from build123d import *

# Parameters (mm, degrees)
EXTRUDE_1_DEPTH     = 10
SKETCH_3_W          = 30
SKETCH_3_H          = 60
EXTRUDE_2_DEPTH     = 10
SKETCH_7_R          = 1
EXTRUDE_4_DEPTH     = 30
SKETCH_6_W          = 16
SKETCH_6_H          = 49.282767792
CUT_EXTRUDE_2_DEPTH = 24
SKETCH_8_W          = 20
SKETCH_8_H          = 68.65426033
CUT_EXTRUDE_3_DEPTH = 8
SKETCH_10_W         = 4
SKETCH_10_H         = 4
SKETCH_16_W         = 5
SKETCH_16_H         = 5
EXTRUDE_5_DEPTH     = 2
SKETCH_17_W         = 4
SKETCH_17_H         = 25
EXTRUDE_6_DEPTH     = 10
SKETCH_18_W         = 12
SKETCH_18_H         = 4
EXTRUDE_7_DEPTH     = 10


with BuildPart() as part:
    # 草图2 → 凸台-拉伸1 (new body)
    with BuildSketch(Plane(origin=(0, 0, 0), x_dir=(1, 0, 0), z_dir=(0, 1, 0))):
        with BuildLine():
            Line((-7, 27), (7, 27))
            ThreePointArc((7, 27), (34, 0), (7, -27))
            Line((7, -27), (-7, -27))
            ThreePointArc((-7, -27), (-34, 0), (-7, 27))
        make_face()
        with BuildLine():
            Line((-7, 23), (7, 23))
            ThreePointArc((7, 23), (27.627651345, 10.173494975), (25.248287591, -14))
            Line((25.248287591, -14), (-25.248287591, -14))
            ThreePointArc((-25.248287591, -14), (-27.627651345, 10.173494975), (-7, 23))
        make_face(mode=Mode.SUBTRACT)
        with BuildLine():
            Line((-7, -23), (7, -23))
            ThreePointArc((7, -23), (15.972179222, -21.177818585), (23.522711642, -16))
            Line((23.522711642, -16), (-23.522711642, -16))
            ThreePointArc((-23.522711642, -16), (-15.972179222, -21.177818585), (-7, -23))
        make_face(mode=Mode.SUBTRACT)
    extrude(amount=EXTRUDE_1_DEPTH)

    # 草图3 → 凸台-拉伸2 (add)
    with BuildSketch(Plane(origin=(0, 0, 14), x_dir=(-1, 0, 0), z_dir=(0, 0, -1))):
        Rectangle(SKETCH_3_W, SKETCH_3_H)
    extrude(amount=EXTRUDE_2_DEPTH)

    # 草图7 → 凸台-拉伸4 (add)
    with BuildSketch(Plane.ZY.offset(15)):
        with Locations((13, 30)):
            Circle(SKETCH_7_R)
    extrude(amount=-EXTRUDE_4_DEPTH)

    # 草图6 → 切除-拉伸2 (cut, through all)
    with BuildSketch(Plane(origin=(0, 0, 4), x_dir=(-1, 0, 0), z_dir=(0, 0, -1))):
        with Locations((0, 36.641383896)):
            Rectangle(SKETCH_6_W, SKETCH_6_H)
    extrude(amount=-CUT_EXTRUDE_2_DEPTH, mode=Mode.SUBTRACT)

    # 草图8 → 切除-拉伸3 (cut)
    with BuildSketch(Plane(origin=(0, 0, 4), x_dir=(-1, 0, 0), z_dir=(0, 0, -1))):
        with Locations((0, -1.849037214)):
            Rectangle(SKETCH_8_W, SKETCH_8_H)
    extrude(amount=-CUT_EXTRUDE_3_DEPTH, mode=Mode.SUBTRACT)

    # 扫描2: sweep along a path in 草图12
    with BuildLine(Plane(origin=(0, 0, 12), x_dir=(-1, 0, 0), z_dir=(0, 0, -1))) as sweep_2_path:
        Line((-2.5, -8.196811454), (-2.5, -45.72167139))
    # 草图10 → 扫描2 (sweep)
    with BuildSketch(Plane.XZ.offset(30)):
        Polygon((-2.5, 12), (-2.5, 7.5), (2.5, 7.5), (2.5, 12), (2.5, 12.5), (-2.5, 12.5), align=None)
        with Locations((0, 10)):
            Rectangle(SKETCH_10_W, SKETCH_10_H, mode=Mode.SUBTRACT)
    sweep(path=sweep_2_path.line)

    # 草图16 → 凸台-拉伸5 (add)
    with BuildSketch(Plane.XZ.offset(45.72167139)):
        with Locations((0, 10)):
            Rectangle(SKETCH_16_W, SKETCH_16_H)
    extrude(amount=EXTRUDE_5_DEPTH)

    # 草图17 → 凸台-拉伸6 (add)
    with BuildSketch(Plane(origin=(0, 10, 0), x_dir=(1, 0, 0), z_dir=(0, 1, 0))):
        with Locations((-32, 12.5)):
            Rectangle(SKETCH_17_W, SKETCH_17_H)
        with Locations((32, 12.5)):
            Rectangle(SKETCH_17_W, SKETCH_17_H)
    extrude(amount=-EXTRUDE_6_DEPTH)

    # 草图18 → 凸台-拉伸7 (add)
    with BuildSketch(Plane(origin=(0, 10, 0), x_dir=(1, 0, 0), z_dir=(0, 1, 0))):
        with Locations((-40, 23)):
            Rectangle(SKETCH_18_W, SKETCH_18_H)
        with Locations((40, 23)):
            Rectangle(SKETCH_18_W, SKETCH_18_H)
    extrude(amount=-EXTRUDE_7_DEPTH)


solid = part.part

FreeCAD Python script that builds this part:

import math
import FreeCAD as App
import Part
import Sketcher
Q = App.Units.Quantity

doc = App.newDocument("Part")
body = doc.addObject("PartDesign::Body", "Body")

# Sketch on XZ plane
sketch1 = doc.addObject("Sketcher::SketchObject", "Sketch")
body.addObject(sketch1)
sketch1.AttachmentSupport = (doc.XZ_Plane, [""])
sketch1.MapMode = "FlatFace"
sketch1.addGeometry([
    Part.LineSegment(App.Vector(7, -27, 0), App.Vector(-7, -27, 0)),  # 0
    Part.ArcOfCircle(Part.Circle(App.Vector(-7, 0, 0), App.Vector(0, 0, 1), 27), math.radians(90), math.radians(270)),  # 1
    Part.LineSegment(App.Vector(-7, 27, 0), App.Vector(7, 27, 0)),  # 2
    Part.ArcOfCircle(Part.Circle(App.Vector(7, 0, 0), App.Vector(0, 0, 1), 27), math.radians(-90), math.radians(90)),  # 3
    Part.ArcOfCircle(Part.Circle(App.Vector(-7, 0, 0), App.Vector(0, 0, 1), 23), math.radians(90), math.radians(136)),  # 4
    Part.LineSegment(App.Vector(-24, 16, 0), App.Vector(24, 16, 0)),  # 5
    Part.ArcOfCircle(Part.Circle(App.Vector(7, 0, 0), App.Vector(0, 0, 1), 23), math.radians(44), math.radians(90)),  # 6
    Part.LineSegment(App.Vector(7, 23, 0), App.Vector(-7, 23, 0)),  # 7
    Part.LineSegment(App.Vector(-7, -23, 0), App.Vector(7, -23, 0)),  # 8
    Part.ArcOfCircle(Part.Circle(App.Vector(7, 0, 0), App.Vector(0, 0, 1), 23), math.radians(-90), math.radians(37)),  # 9
    Part.LineSegment(App.Vector(25, 14, 0), App.Vector(-25, 14, 0)),  # 10
    Part.ArcOfCircle(Part.Circle(App.Vector(-7, 0, 0), App.Vector(0, 0, 1), 23), math.radians(143), math.radians(270)),  # 11
], False)
sketch1.addConstraint([
    Sketcher.Constraint("Tangent", 0, 2, 1, 2),
    Sketcher.Constraint("Tangent", 1, 1, 2, 1),
    Sketcher.Constraint("Tangent", 2, 2, 3, 2),
    Sketcher.Constraint("Tangent", 3, 1, 0, 1),
    Sketcher.Constraint("Coincident", 4, 2, 5, 1),
    Sketcher.Constraint("Coincident", 5, 2, 6, 1),
    Sketcher.Constraint("Tangent", 6, 2, 7, 1),
    Sketcher.Constraint("Tangent", 7, 2, 4, 1),
    Sketcher.Constraint("Tangent", 8, 2, 9, 1),
    Sketcher.Constraint("Coincident", 9, 2, 10, 1),
    Sketcher.Constraint("Coincident", 10, 2, 11, 1),
    Sketcher.Constraint("Tangent", 11, 2, 8, 1),
    Sketcher.Constraint("Horizontal", 0),
    Sketcher.Constraint("Horizontal", 2),
    Sketcher.Constraint("Horizontal", 5),
    Sketcher.Constraint("Horizontal", 7),
    Sketcher.Constraint("Horizontal", 8),
    Sketcher.Constraint("Horizontal", 10),
    Sketcher.Constraint("Coincident", 4, 3, 1, 3),
    Sketcher.Constraint("Coincident", 6, 3, 3, 3),
    Sketcher.Constraint("Coincident", 9, 3, 3, 3),
    Sketcher.Constraint("Coincident", 11, 3, 1, 3),
    Sketcher.Constraint("Equal", 6, 9),
    Sketcher.Constraint("Symmetric", 1, 3, 3, 3, -1, 1),
    Sketcher.Constraint("Radius", 1, Q("27 mm")),
    Sketcher.Constraint("Radius", 4, Q("23 mm")),
    Sketcher.Constraint("DistanceX", 0, 2, 0, 1, Q("14 mm")),
    Sketcher.Constraint("DistanceY", -1, 1, 4, 2, Q("16 mm")),
    Sketcher.Constraint("DistanceY", -1, 1, 9, 2, Q("14 mm")),
])
pad1 = doc.addObject("PartDesign::Pad", "Pad")
body.addObject(pad1)
pad1.Profile = sketch1
pad1.Length = 10
pad1.Reversed = True

# Sketch on XY plane
sketch2 = doc.addObject("Sketcher::SketchObject", "Sketch001")
body.addObject(sketch2)
sketch2.AttachmentSupport = (doc.XY_Plane, [""])
sketch2.MapMode = "FlatFace"
sketch2.AttachmentOffset = App.Placement(App.Vector(0, 0, 14), App.Rotation())
sketch2.addGeometry([
    Part.LineSegment(App.Vector(15, 30, 0), App.Vector(15, -30, 0)),
    Part.LineSegment(App.Vector(15, -30, 0), App.Vector(-15, -30, 0)),
    Part.LineSegment(App.Vector(-15, -30, 0), App.Vector(-15, 30, 0)),
    Part.LineSegment(App.Vector(-15, 30, 0), App.Vector(15, 30, 0)),
], False)
sketch2.addConstraint([
    Sketcher.Constraint("Coincident", 0, 2, 1, 1),
    Sketcher.Constraint("Coincident", 1, 2, 2, 1),
    Sketcher.Constraint("Coincident", 2, 2, 3, 1),
    Sketcher.Constraint("Coincident", 3, 2, 0, 1),
    Sketcher.Constraint("Vertical", 0),
    Sketcher.Constraint("Horizontal", 1),
    Sketcher.Constraint("Vertical", 2),
    Sketcher.Constraint("Horizontal", 3),
    Sketcher.Constraint("Symmetric", 0, 2, 2, 2, -1, 1),
    Sketcher.Constraint("DistanceX", 1, 2, 1, 1, Q("30 mm")),
    Sketcher.Constraint("DistanceY", 0, 2, 0, 1, Q("60 mm")),
])
pad2 = doc.addObject("PartDesign::Pad", "Pad001")
body.addObject(pad2)
pad2.Profile = sketch2
pad2.Length = 10
pad2.Reversed = True

# Sketch on YZ plane
sketch3 = doc.addObject("Sketcher::SketchObject", "Sketch002")
body.addObject(sketch3)
sketch3.AttachmentSupport = (doc.YZ_Plane, [""])
sketch3.MapMode = "FlatFace"
sketch3.AttachmentOffset = App.Placement(App.Vector(0, 0, -15), App.Rotation())
sketch3.addGeometry(Part.Circle(App.Vector(30, 13, 0), App.Vector(0, 0, 1), 1), False)
sketch3.addConstraint([
    Sketcher.Constraint("Diameter", 0, Q("2 mm")),
    Sketcher.Constraint("DistanceX", -1, 1, 0, 3, Q("30 mm")),
    Sketcher.Constraint("DistanceY", -1, 1, 0, 3, Q("13 mm")),
])
pad3 = doc.addObject("PartDesign::Pad", "Pad002")
body.addObject(pad3)
pad3.Profile = sketch3
pad3.Length = 30

# Sketch on XY plane
sketch4 = doc.addObject("Sketcher::SketchObject", "Sketch003")
body.addObject(sketch4)
sketch4.AttachmentSupport = (doc.XY_Plane, [""])
sketch4.MapMode = "FlatFace"
sketch4.AttachmentOffset = App.Placement(App.Vector(0, 0, 4), App.Rotation())
sketch4.addGeometry([
    Part.LineSegment(App.Vector(8, 61, 0), App.Vector(8, 12, 0)),
    Part.LineSegment(App.Vector(8, 12, 0), App.Vector(-8, 12, 0)),
    Part.LineSegment(App.Vector(-8, 12, 0), App.Vector(-8, 61, 0)),
    Part.LineSegment(App.Vector(-8, 61, 0), App.Vector(8, 61, 0)),
], False)
sketch4.addConstraint([
    Sketcher.Constraint("Coincident", 0, 2, 1, 1),
    Sketcher.Constraint("Coincident", 1, 2, 2, 1),
    Sketcher.Constraint("Coincident", 2, 2, 3, 1),
    Sketcher.Constraint("Coincident", 3, 2, 0, 1),
    Sketcher.Constraint("Vertical", 0),
    Sketcher.Constraint("Horizontal", 1),
    Sketcher.Constraint("Vertical", 2),
    Sketcher.Constraint("Horizontal", 3),
    Sketcher.Constraint("DistanceX", 1, 2, 1, 1, Q("16 mm")),
    Sketcher.Constraint("DistanceX", -1, 1, 0, 2, Q("8 mm")),
    Sketcher.Constraint("DistanceY", -1, 1, 0, 2, Q("12 mm")),
    Sketcher.Constraint("DistanceY", 0, 2, 0, 1, Q("49.282768 mm")),
])
pocket1 = doc.addObject("PartDesign::Pocket", "Pocket")
body.addObject(pocket1)
pocket1.Profile = sketch4
pocket1.Type = "ThroughAll"
pocket1.Reversed = True

# Sketch on XY plane
sketch5 = doc.addObject("Sketcher::SketchObject", "Sketch004")
body.addObject(sketch5)
sketch5.AttachmentSupport = (doc.XY_Plane, [""])
sketch5.MapMode = "FlatFace"
sketch5.AttachmentOffset = App.Placement(App.Vector(0, 0, 4), App.Rotation())
sketch5.addGeometry([
    Part.LineSegment(App.Vector(10, 32, 0), App.Vector(10, -36, 0)),
    Part.LineSegment(App.Vector(10, -36, 0), App.Vector(-10, -36, 0)),
    Part.LineSegment(App.Vector(-10, -36, 0), App.Vector(-10, 32, 0)),
    Part.LineSegment(App.Vector(-10, 32, 0), App.Vector(10, 32, 0)),
], False)
sketch5.addConstraint([
    Sketcher.Constraint("Coincident", 0, 2, 1, 1),
    Sketcher.Constraint("Coincident", 1, 2, 2, 1),
    Sketcher.Constraint("Coincident", 2, 2, 3, 1),
    Sketcher.Constraint("Coincident", 3, 2, 0, 1),
    Sketcher.Constraint("Vertical", 0),
    Sketcher.Constraint("Horizontal", 1),
    Sketcher.Constraint("Vertical", 2),
    Sketcher.Constraint("Horizontal", 3),
    Sketcher.Constraint("DistanceX", 1, 2, 1, 1, Q("20 mm")),
    Sketcher.Constraint("DistanceX", -1, 1, 0, 2, Q("10 mm")),
    Sketcher.Constraint("DistanceY", 0, 2, 0, 1, Q("68.65426 mm")),
    Sketcher.Constraint("DistanceY", 0, 2, -1, 1, Q("36.176167 mm")),
])
pocket2 = doc.addObject("PartDesign::Pocket", "Pocket001")
body.addObject(pocket2)
pocket2.Profile = sketch5
pocket2.Length = 8
pocket2.Reversed = True

# Sketch on XZ plane
sketch6 = doc.addObject("Sketcher::SketchObject", "Sketch005")
body.addObject(sketch6)
sketch6.AttachmentSupport = (doc.XZ_Plane, [""])
sketch6.MapMode = "FlatFace"
sketch6.AttachmentOffset = App.Placement(App.Vector(0, 0, 30), App.Rotation())
sketch6.addGeometry([
    Part.LineSegment(App.Vector(-2.5, 7.5, 0), App.Vector(2.5, 7.5, 0)),  # 0
    Part.LineSegment(App.Vector(2.5, 7.5, 0), App.Vector(2.5, 12.5, 0)),  # 1
    Part.LineSegment(App.Vector(2.5, 12.5, 0), App.Vector(-2.5, 12.5, 0)),  # 2
    Part.LineSegment(App.Vector(-2.5, 12.5, 0), App.Vector(-2.5, 7.5, 0)),  # 3
    Part.LineSegment(App.Vector(2, 8, 0), App.Vector(-2, 8, 0)),  # 4
    Part.LineSegment(App.Vector(-2, 8, 0), App.Vector(-2, 12, 0)),  # 5
    Part.LineSegment(App.Vector(-2, 12, 0), App.Vector(2, 12, 0)),  # 6
    Part.LineSegment(App.Vector(2, 12, 0), App.Vector(2, 8, 0)),  # 7
], False)
sketch6.addConstraint([
    Sketcher.Constraint("Coincident", 0, 2, 1, 1),
    Sketcher.Constraint("Coincident", 1, 2, 2, 1),
    Sketcher.Constraint("Coincident", 2, 2, 3, 1),
    Sketcher.Constraint("Coincident", 3, 2, 0, 1),
    Sketcher.Constraint("Coincident", 4, 2, 5, 1),
    Sketcher.Constraint("Coincident", 5, 2, 6, 1),
    Sketcher.Constraint("Coincident", 6, 2, 7, 1),
    Sketcher.Constraint("Coincident", 7, 2, 4, 1),
    Sketcher.Constraint("Horizontal", 0),
    Sketcher.Constraint("Vertical", 1),
    Sketcher.Constraint("Horizontal", 2),
    Sketcher.Constraint("Vertical", 3),
    Sketcher.Constraint("Horizontal", 4),
    Sketcher.Constraint("Vertical", 5),
    Sketcher.Constraint("Horizontal", 6),
    Sketcher.Constraint("Vertical", 7),
    Sketcher.Constraint("Equal", 2, 1),
    Sketcher.Constraint("Equal", 6, 5),
    Sketcher.Constraint("DistanceX", 0, 1, 0, 2, Q("5 mm")),
    Sketcher.Constraint("DistanceX", 4, 2, 4, 1, Q("4 mm")),
    Sketcher.Constraint("DistanceX", 4, 2, -1, 1, Q("2 mm")),
    Sketcher.Constraint("DistanceY", -1, 1, 4, 2, Q("8 mm")),
    Sketcher.Constraint("DistanceX", -1, 1, 0, 2, Q("2.5 mm")),
    Sketcher.Constraint("DistanceY", -1, 1, 0, 2, Q("7.5 mm")),
])

# Sketch on XY plane
sketch7 = doc.addObject("Sketcher::SketchObject", "Sketch006")
body.addObject(sketch7)
sketch7.AttachmentSupport = (doc.XY_Plane, [""])
sketch7.MapMode = "FlatFace"
sketch7.AttachmentOffset = App.Placement(App.Vector(0, 0, 12), App.Rotation())
sketch7.addGeometry(Part.LineSegment(App.Vector(2, -8, 0), App.Vector(2, -46, 0)), False)
sketch7.addConstraint([
    Sketcher.Constraint("Vertical", 0),
    Sketcher.Constraint("DistanceX", -1, 1, 0, 1, Q("2.5 mm")),
    Sketcher.Constraint("DistanceY", 0, 2, 0, 1, Q("37.52486 mm")),
    Sketcher.Constraint("DistanceY", 0, 1, -1, 1, Q("8.196811 mm")),
])
doc.recompute()

additivepipe = doc.addObject("PartDesign::AdditivePipe", "AdditivePipe")
body.addObject(additivepipe)
additivepipe.Profile = sketch6
additivepipe.Spine = (sketch7, ["Edge1"])

# Sketch on XZ plane
sketch8 = doc.addObject("Sketcher::SketchObject", "Sketch007")
body.addObject(sketch8)
sketch8.AttachmentSupport = (doc.XZ_Plane, [""])
sketch8.MapMode = "FlatFace"
sketch8.AttachmentOffset = App.Placement(App.Vector(0, 0, 45.721671), App.Rotation())
sketch8.addGeometry([
    Part.LineSegment(App.Vector(-2, 12, 0), App.Vector(-2, 8, 0)),
    Part.LineSegment(App.Vector(-2, 8, 0), App.Vector(2, 8, 0)),
    Part.LineSegment(App.Vector(2, 8, 0), App.Vector(2, 12, 0)),
    Part.LineSegment(App.Vector(2, 12, 0), App.Vector(-2, 12, 0)),
], False)
sketch8.addConstraint([
    Sketcher.Constraint("Coincident", 0, 2, 1, 1),
    Sketcher.Constraint("Coincident", 1, 2, 2, 1),
    Sketcher.Constraint("Coincident", 2, 2, 3, 1),
    Sketcher.Constraint("Coincident", 3, 2, 0, 1),
    Sketcher.Constraint("Vertical", 0),
    Sketcher.Constraint("Horizontal", 1),
    Sketcher.Constraint("Vertical", 2),
    Sketcher.Constraint("Horizontal", 3),
    Sketcher.Constraint("Equal", 3, 0),
    Sketcher.Constraint("DistanceX", 1, 1, 1, 2, Q("5 mm")),
    Sketcher.Constraint("DistanceX", 0, 2, -1, 1, Q("2.5 mm")),
    Sketcher.Constraint("DistanceY", -1, 1, 0, 2, Q("7.5 mm")),
])
pad4 = doc.addObject("PartDesign::Pad", "Pad003")
body.addObject(pad4)
pad4.Profile = sketch8
pad4.Length = 2

# Sketch on XZ plane
sketch9 = doc.addObject("Sketcher::SketchObject", "Sketch008")
body.addObject(sketch9)
sketch9.AttachmentSupport = (doc.XZ_Plane, [""])
sketch9.MapMode = "FlatFace"
sketch9.AttachmentOffset = App.Placement(App.Vector(0, 0, -10), App.Rotation())
sketch9.addGeometry([
    Part.LineSegment(App.Vector(-34, -25, 0), App.Vector(-34, 0, 0)),  # 0
    Part.LineSegment(App.Vector(-34, 0, 0), App.Vector(-30, 0, 0)),  # 1
    Part.LineSegment(App.Vector(-30, 0, 0), App.Vector(-30, -25, 0)),  # 2
    Part.LineSegment(App.Vector(-30, -25, 0), App.Vector(-34, -25, 0)),  # 3
    Part.LineSegment(App.Vector(30, -25, 0), App.Vector(30, 0, 0)),  # 4
    Part.LineSegment(App.Vector(30, 0, 0), App.Vector(34, 0, 0)),  # 5
    Part.LineSegment(App.Vector(34, 0, 0), App.Vector(34, -25, 0)),  # 6
    Part.LineSegment(App.Vector(34, -25, 0), App.Vector(30, -25, 0)),  # 7
], False)
sketch9.addConstraint([
    Sketcher.Constraint("Coincident", 0, 2, 1, 1),
    Sketcher.Constraint("Coincident", 1, 2, 2, 1),
    Sketcher.Constraint("Coincident", 2, 2, 3, 1),
    Sketcher.Constraint("Coincident", 3, 2, 0, 1),
    Sketcher.Constraint("Coincident", 4, 2, 5, 1),
    Sketcher.Constraint("Coincident", 5, 2, 6, 1),
    Sketcher.Constraint("Coincident", 6, 2, 7, 1),
    Sketcher.Constraint("Coincident", 7, 2, 4, 1),
    Sketcher.Constraint("Vertical", 0),
    Sketcher.Constraint("Horizontal", 1),
    Sketcher.Constraint("Vertical", 2),
    Sketcher.Constraint("Horizontal", 3),
    Sketcher.Constraint("Vertical", 4),
    Sketcher.Constraint("Horizontal", 5),
    Sketcher.Constraint("Vertical", 6),
    Sketcher.Constraint("Horizontal", 7),
    Sketcher.Constraint("Symmetric", 1, 2, 4, 2, -1, 1),
    Sketcher.Constraint("Symmetric", 0, 2, 5, 2, -2),
    Sketcher.Constraint("Horizontal", 3, 2, 6, 2),
    Sketcher.Constraint("DistanceX", 1, 1, 1, 2, Q("4 mm")),
    Sketcher.Constraint("DistanceY", 0, 1, 0, 2, Q("25 mm")),
    Sketcher.Constraint("DistanceX", 0, 2, -1, 1, Q("34 mm")),
])
pad5 = doc.addObject("PartDesign::Pad", "Pad004")
body.addObject(pad5)
pad5.Profile = sketch9
pad5.Length = 10

# Sketch on XZ plane
sketch10 = doc.addObject("Sketcher::SketchObject", "Sketch009")
body.addObject(sketch10)
sketch10.AttachmentSupport = (doc.XZ_Plane, [""])
sketch10.MapMode = "FlatFace"
sketch10.AttachmentOffset = App.Placement(App.Vector(0, 0, -10), App.Rotation())
sketch10.addGeometry([
    Part.LineSegment(App.Vector(-46, -25, 0), App.Vector(-46, -21, 0)),  # 0
    Part.LineSegment(App.Vector(-46, -21, 0), App.Vector(-34, -21, 0)),  # 1
    Part.LineSegment(App.Vector(-34, -21, 0), App.Vector(-34, -25, 0)),  # 2
    Part.LineSegment(App.Vector(-34, -25, 0), App.Vector(-46, -25, 0)),  # 3
    Part.LineSegment(App.Vector(34, -25, 0), App.Vector(34, -21, 0)),  # 4
    Part.LineSegment(App.Vector(34, -21, 0), App.Vector(46, -21, 0)),  # 5
    Part.LineSegment(App.Vector(46, -21, 0), App.Vector(46, -25, 0)),  # 6
    Part.LineSegment(App.Vector(46, -25, 0), App.Vector(34, -25, 0)),  # 7
], False)
sketch10.addConstraint([
    Sketcher.Constraint("Coincident", 0, 2, 1, 1),
    Sketcher.Constraint("Coincident", 1, 2, 2, 1),
    Sketcher.Constraint("Coincident", 2, 2, 3, 1),
    Sketcher.Constraint("Coincident", 3, 2, 0, 1),
    Sketcher.Constraint("Coincident", 4, 2, 5, 1),
    Sketcher.Constraint("Coincident", 5, 2, 6, 1),
    Sketcher.Constraint("Coincident", 6, 2, 7, 1),
    Sketcher.Constraint("Coincident", 7, 2, 4, 1),
    Sketcher.Constraint("Vertical", 0),
    Sketcher.Constraint("Horizontal", 1),
    Sketcher.Constraint("Vertical", 2),
    Sketcher.Constraint("Horizontal", 3),
    Sketcher.Constraint("Vertical", 4),
    Sketcher.Constraint("Horizontal", 5),
    Sketcher.Constraint("Vertical", 6),
    Sketcher.Constraint("Horizontal", 7),
    Sketcher.Constraint("Symmetric", 1, 2, 4, 2, -2),
    Sketcher.Constraint("Symmetric", 3, 2, 6, 2, -2),
    Sketcher.Constraint("DistanceX", 1, 1, 1, 2, Q("12 mm")),
    Sketcher.Constraint("DistanceY", 0, 1, 0, 2, Q("4 mm")),
    Sketcher.Constraint("DistanceX", 0, 2, -1, 1, Q("46 mm")),
    Sketcher.Constraint("DistanceY", 0, 2, -1, 1, Q("21 mm")),
])
pad6 = doc.addObject("PartDesign::Pad", "Pad005")
body.addObject(pad6)
pad6.Profile = sketch10
pad6.Length = 10

doc.recompute()
